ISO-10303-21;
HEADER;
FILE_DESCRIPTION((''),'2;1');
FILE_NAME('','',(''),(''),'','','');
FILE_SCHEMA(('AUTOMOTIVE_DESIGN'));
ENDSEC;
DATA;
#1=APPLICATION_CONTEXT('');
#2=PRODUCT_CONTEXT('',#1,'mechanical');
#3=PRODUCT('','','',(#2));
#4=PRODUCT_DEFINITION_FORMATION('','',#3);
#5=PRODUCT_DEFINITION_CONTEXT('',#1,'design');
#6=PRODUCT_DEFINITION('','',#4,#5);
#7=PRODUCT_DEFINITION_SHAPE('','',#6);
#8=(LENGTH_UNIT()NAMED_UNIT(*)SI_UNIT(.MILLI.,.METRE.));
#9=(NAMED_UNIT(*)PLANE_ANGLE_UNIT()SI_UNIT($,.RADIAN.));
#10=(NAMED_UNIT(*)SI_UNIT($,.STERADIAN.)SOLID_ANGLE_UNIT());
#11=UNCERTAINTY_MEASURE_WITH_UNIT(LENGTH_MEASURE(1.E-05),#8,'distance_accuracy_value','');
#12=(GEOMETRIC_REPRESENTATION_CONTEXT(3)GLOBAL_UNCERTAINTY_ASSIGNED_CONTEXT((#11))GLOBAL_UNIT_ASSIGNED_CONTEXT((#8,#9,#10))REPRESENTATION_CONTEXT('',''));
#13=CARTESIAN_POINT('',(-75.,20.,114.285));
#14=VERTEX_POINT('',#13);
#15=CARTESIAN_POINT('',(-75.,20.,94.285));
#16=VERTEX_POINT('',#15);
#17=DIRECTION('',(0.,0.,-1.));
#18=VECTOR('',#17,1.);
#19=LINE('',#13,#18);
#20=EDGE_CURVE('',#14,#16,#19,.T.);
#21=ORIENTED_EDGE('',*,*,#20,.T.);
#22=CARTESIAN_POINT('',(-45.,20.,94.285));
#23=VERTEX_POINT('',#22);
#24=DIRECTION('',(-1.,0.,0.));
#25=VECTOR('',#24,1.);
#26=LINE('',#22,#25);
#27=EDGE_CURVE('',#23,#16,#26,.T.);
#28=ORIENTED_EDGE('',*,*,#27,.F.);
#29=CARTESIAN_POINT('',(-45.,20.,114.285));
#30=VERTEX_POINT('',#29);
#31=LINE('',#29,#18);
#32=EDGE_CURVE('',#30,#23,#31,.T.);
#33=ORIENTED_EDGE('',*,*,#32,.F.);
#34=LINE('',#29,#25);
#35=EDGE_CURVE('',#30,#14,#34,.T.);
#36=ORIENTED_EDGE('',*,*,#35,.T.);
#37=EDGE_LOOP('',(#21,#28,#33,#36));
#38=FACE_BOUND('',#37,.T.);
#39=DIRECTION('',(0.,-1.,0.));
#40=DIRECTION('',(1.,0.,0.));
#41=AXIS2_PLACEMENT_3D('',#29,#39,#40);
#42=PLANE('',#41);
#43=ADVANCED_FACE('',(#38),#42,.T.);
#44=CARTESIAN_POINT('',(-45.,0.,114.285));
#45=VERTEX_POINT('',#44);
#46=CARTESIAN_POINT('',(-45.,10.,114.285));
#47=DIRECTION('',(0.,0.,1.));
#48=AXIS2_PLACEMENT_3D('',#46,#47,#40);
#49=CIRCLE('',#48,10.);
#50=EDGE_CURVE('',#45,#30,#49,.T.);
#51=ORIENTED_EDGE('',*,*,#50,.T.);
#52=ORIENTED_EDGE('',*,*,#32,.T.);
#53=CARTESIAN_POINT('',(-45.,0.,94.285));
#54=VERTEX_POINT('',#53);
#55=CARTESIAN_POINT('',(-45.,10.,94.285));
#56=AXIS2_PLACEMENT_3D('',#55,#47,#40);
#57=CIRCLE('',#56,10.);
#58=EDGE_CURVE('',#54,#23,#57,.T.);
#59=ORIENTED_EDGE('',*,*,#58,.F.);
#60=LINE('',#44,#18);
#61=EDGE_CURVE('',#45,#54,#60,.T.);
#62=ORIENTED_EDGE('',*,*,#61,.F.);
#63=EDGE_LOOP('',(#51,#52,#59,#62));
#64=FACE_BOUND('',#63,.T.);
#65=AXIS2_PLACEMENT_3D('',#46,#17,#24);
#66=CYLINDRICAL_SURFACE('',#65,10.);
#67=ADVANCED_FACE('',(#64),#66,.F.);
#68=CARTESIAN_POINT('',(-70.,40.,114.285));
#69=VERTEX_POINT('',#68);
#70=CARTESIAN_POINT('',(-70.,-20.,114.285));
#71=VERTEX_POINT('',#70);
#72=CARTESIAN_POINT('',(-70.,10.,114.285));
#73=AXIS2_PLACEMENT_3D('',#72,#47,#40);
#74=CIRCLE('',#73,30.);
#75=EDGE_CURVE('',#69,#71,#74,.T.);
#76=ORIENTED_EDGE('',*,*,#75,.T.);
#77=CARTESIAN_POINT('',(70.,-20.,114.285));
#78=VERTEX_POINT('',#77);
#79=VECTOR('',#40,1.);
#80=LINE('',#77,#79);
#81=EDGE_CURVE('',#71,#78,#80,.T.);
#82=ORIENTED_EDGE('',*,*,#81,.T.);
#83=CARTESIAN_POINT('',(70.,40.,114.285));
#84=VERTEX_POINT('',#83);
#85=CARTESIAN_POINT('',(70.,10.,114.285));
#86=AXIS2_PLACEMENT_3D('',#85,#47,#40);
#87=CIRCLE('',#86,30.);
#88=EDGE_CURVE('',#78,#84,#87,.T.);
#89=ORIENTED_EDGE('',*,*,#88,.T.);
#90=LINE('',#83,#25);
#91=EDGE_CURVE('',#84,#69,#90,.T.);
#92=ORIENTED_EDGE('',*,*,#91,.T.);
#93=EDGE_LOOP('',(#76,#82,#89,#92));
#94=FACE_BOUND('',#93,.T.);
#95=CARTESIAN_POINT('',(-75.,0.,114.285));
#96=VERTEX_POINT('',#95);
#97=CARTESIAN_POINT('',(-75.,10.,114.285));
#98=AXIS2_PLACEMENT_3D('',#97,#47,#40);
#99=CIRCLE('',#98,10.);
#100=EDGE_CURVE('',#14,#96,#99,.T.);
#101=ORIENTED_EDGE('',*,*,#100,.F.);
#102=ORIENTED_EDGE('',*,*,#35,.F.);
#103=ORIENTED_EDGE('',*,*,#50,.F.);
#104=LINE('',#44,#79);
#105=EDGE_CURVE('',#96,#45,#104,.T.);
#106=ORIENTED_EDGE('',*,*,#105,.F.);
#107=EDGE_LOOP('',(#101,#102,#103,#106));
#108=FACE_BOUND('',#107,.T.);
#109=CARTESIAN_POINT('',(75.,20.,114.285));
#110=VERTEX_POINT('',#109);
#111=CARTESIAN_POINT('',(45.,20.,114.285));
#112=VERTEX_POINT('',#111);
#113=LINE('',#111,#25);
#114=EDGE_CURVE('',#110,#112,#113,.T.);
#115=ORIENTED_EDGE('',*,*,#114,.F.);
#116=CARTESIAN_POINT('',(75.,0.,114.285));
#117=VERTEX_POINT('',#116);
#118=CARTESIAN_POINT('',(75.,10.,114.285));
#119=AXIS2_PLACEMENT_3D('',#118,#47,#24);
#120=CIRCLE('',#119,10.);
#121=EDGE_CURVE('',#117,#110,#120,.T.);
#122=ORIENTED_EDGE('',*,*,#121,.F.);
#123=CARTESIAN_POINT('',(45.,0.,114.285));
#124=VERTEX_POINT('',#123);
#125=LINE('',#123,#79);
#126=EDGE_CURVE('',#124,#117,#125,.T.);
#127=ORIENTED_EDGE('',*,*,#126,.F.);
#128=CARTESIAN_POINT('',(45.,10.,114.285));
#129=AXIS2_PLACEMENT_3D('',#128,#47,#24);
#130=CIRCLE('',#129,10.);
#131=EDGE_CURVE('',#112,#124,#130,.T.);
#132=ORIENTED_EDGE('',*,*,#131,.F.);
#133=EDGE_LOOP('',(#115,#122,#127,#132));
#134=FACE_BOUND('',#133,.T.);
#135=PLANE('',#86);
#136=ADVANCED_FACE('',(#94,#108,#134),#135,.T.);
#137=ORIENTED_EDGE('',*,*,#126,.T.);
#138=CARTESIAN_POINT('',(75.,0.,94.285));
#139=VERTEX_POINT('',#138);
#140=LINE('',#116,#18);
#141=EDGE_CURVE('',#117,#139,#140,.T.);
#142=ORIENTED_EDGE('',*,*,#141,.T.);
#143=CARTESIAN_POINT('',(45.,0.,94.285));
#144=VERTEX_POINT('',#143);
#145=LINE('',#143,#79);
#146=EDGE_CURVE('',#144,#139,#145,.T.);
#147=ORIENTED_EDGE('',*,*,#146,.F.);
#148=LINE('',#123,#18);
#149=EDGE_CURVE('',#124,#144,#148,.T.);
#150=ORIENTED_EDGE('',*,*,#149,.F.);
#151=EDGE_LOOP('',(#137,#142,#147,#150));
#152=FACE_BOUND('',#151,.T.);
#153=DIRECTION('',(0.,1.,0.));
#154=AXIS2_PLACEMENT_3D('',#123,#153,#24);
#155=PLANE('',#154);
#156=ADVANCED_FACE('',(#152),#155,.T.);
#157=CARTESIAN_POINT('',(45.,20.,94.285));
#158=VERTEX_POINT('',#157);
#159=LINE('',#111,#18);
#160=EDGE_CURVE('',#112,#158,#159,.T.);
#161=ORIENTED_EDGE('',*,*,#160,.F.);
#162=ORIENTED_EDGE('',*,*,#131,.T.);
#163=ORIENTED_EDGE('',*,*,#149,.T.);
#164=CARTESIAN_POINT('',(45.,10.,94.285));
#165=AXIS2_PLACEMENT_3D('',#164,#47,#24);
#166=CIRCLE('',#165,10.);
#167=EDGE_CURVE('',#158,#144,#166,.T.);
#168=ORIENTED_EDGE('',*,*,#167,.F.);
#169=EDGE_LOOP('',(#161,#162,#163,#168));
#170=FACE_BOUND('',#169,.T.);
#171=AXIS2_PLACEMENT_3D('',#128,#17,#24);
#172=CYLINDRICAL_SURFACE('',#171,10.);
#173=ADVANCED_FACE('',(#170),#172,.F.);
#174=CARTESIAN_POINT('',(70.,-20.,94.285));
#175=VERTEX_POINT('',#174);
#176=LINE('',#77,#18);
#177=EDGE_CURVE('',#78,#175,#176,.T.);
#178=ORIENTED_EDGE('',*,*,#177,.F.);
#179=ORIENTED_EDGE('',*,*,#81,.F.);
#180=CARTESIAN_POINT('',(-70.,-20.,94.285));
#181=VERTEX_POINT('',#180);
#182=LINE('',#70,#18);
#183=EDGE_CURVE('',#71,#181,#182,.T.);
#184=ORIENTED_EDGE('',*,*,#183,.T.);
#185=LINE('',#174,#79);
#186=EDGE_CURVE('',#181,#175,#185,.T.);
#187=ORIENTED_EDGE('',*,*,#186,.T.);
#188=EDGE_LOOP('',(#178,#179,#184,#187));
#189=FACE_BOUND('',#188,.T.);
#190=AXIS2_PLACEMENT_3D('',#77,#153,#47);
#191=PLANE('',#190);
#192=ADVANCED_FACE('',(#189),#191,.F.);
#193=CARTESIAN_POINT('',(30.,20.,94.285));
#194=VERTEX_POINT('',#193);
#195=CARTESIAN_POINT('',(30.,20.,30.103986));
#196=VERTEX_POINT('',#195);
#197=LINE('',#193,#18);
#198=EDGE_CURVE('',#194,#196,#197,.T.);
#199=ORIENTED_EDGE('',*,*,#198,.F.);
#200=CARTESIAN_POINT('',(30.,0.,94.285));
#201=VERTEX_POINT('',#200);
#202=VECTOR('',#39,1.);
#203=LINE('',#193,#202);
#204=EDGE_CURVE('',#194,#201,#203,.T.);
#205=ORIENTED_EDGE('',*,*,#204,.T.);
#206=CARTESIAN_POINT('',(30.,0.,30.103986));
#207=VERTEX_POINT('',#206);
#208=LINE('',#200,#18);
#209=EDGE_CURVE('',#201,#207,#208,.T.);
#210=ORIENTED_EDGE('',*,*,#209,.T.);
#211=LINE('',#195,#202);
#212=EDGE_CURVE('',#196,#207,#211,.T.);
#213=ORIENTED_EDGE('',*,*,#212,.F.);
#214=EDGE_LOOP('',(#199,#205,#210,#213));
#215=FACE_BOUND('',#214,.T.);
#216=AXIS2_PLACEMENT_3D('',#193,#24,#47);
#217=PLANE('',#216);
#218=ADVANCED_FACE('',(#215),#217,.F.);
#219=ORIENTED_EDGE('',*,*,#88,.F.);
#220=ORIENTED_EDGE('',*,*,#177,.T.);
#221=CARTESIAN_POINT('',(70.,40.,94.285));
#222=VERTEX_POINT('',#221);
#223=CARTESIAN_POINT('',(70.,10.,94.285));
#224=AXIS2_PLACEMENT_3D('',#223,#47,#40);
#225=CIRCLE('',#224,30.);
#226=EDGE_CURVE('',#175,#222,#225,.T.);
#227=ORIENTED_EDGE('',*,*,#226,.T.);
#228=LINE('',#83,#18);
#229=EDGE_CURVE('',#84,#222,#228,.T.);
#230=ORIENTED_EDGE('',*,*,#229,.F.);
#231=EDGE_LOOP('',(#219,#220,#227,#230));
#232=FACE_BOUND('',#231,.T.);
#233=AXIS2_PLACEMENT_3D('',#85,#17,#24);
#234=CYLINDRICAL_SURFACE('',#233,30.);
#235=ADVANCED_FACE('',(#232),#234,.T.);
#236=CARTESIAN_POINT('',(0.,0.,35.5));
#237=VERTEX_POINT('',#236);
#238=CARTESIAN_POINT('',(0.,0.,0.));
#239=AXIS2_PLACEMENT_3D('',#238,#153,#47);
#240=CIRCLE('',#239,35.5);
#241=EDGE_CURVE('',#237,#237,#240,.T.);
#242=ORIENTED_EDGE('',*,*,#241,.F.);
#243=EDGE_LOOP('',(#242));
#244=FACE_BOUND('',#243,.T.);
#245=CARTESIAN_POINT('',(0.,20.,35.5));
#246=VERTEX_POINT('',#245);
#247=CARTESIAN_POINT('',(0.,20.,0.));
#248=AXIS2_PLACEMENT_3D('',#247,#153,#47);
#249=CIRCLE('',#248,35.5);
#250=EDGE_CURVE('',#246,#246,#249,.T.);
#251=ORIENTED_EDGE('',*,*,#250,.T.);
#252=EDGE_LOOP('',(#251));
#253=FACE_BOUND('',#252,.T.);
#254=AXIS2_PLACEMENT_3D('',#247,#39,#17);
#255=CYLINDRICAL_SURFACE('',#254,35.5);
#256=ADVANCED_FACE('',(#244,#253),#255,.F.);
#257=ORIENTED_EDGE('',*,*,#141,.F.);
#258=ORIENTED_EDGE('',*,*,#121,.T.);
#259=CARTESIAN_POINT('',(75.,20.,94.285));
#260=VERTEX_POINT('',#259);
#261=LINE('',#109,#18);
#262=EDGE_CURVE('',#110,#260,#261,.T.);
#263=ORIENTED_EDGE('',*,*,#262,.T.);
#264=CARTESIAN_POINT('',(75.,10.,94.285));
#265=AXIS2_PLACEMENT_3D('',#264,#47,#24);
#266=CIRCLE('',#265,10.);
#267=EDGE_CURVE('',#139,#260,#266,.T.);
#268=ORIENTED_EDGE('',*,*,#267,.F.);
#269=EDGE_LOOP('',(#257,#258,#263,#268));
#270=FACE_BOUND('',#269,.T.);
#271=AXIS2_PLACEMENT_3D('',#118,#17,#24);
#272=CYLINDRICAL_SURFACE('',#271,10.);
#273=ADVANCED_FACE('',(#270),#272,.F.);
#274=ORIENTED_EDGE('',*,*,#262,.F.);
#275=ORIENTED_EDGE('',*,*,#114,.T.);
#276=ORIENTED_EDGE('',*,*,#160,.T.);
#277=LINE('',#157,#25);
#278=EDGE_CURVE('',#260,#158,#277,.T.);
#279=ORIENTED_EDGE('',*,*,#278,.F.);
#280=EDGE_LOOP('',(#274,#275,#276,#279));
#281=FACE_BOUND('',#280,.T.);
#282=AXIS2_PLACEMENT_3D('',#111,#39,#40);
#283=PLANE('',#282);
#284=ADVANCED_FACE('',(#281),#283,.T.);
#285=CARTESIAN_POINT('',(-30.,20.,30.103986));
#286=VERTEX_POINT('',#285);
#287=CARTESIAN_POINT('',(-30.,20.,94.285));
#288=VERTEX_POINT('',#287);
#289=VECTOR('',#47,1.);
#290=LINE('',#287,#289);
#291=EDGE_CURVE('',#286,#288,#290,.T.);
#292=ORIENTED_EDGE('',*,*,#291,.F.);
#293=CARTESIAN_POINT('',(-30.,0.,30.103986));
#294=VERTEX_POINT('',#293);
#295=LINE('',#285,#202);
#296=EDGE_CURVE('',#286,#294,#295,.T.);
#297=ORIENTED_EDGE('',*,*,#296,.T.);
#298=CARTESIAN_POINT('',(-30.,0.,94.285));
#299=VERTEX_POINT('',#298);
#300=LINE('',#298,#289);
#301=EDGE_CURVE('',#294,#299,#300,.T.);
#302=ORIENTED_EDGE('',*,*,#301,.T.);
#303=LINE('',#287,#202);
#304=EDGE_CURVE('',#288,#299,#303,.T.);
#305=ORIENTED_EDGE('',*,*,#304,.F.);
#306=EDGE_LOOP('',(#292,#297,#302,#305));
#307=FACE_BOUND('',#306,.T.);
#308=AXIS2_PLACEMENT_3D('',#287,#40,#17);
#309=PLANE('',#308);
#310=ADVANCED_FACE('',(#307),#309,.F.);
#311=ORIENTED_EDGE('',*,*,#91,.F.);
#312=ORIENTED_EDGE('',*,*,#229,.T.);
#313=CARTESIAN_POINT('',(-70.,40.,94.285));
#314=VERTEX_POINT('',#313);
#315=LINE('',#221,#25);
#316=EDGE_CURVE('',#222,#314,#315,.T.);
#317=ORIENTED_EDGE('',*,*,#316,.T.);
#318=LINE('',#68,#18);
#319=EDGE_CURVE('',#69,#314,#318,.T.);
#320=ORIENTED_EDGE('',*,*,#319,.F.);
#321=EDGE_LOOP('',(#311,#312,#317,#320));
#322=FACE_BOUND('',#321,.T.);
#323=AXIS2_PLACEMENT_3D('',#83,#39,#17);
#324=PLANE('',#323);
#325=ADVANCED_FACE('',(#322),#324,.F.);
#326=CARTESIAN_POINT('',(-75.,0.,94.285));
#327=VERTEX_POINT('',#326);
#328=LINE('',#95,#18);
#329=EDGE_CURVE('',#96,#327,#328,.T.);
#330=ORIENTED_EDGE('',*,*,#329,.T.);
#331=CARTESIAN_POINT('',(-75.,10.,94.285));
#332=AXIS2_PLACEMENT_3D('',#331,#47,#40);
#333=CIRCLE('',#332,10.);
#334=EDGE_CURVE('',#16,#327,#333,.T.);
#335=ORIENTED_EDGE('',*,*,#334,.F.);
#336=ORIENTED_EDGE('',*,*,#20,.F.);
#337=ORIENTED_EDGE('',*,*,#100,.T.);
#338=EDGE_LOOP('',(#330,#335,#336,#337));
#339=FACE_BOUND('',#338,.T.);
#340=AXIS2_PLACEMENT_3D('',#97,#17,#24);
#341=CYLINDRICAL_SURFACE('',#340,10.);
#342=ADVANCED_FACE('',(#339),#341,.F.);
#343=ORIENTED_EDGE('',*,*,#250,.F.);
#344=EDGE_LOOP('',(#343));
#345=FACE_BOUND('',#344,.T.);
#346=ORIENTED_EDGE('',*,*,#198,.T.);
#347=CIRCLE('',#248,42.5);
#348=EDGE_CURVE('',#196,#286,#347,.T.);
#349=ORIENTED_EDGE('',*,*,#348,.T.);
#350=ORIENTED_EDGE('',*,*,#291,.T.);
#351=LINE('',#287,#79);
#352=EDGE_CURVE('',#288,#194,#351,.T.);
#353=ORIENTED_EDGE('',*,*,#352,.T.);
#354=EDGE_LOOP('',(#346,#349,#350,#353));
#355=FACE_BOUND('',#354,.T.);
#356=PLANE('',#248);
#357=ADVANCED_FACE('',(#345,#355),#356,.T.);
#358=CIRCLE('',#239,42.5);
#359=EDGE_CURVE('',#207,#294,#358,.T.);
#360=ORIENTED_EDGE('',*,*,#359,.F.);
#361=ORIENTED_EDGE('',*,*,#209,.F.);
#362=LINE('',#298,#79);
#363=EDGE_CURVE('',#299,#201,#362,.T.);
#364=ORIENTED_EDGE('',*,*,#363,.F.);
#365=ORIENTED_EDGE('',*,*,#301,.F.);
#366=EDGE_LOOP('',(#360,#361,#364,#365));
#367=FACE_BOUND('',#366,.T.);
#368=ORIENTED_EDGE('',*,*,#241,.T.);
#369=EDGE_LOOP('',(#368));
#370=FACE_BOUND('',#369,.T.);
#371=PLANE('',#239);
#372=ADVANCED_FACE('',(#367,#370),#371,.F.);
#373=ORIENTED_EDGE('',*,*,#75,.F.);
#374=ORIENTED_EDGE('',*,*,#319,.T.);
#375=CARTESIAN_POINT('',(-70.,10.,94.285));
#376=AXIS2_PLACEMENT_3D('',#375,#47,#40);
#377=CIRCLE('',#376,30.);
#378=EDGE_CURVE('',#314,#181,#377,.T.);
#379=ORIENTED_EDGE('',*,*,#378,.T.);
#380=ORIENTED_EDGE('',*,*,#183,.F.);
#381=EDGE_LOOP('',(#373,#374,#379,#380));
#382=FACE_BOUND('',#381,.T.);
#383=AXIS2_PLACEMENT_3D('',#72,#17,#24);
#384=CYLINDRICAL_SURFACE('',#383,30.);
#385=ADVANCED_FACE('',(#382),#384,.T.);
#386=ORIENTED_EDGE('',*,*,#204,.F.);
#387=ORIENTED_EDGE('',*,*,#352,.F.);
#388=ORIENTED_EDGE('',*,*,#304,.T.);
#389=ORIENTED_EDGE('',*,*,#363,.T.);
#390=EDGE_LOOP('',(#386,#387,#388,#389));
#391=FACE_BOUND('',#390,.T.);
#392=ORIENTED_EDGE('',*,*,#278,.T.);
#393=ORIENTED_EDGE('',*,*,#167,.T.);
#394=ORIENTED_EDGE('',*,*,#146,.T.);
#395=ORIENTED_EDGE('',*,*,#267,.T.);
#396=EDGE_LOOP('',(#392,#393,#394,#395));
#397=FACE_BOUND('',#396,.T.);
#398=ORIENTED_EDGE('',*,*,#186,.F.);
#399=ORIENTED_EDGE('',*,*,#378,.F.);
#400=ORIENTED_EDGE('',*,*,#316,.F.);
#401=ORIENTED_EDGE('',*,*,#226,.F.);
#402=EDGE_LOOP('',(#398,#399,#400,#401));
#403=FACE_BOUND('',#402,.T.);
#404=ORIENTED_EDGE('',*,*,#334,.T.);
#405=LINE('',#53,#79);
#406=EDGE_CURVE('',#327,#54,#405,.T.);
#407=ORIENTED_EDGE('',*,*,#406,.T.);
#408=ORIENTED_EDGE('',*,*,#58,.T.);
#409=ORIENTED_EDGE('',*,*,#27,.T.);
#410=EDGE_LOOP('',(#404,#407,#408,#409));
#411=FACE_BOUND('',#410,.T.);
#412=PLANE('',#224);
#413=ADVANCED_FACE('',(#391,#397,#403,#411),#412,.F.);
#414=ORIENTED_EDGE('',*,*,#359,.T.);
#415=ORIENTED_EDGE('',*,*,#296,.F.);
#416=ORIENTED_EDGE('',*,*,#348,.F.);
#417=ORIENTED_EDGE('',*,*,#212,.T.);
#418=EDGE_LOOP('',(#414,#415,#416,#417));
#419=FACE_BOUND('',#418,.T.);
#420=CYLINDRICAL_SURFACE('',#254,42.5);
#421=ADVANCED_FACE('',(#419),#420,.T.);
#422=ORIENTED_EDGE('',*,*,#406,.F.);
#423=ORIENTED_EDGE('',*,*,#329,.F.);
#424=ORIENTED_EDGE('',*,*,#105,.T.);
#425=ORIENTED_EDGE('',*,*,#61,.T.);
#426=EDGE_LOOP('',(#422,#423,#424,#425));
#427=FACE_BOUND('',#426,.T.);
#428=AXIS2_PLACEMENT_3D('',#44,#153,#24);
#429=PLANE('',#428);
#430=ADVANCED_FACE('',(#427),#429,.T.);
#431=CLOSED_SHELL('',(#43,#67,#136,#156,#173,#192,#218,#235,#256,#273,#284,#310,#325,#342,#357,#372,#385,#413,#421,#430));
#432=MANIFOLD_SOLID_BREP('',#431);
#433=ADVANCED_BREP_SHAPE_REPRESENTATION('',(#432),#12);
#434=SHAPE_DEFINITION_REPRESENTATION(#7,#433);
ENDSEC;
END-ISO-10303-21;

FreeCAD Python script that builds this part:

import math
import FreeCAD as App
import Part
import Sketcher

V = App.Vector

doc = App.newDocument("Part")
body = doc.addObject("PartDesign::Body", "Body")

# Sketch on XZ plane
sketch1 = doc.addObject("Sketcher::SketchObject", "Sketch")
body.addObject(sketch1)
sketch1.AttachmentSupport = (doc.XZ_Plane, [""])
sketch1.MapMode = "FlatFace"
sketch1.addGeometry(Part.Circle(V(0, 0, 0), V(0, 0, 1), 42), False)
sketch1.addGeometry(Part.Circle(V(0, 0, 0), V(0, 0, 1), 36), False)
sketch1.addConstraint(Sketcher.Constraint("Coincident", 0, 3, -1, 1))
sketch1.addConstraint(Sketcher.Constraint("Coincident", 1, 3, -1, 1))
sketch1.addConstraint(Sketcher.Constraint("Diameter", 0, 85.0))
sketch1.addConstraint(Sketcher.Constraint("Diameter", 1, 71.0))
pad1 = doc.addObject("PartDesign::Pad", "Pad")
body.addObject(pad1)
pad1.Profile = sketch1
pad1.Length = 20
pad1.Reversed = True

# Sketch on XZ plane
sketch2 = doc.addObject("Sketcher::SketchObject", "Sketch001")
body.addObject(sketch2)
sketch2.AttachmentSupport = (doc.XZ_Plane, [""])
sketch2.MapMode = "FlatFace"
sketch2.addGeometry(Part.LineSegment(V(-30, 94, 0), V(30, 94, 0)), False)
sketch2.addGeometry(Part.LineSegment(V(30, 94, 0), V(30, 30, 0)), False)
sketch2.addGeometry(Part.ArcOfCircle(Part.Circle(V(0, 0, 0), V(0, 0, 1), 42), math.radians(45), math.radians(135)), False)
sketch2.addGeometry(Part.LineSegment(V(-30, 30, 0), V(-30, 94, 0)), False)
sketch2.addConstraint(Sketcher.Constraint("Coincident", 0, 2, 1, 1))
sketch2.addConstraint(Sketcher.Constraint("Coincident", 1, 2, 2, 1))
sketch2.addConstraint(Sketcher.Constraint("Coincident", 2, 2, 3, 1))
sketch2.addConstraint(Sketcher.Constraint("Coincident", 3, 2, 0, 1))
sketch2.addConstraint(Sketcher.Constraint("Horizontal", 0))
sketch2.addConstraint(Sketcher.Constraint("Vertical", 1))
sketch2.addConstraint(Sketcher.Constraint("Vertical", 3))
sketch2.addConstraint(Sketcher.Constraint("Coincident", 2, 3, -1, 1))
sketch2.addConstraint(Sketcher.Constraint("Horizontal", 1, 2, 2, 2))
sketch2.addConstraint(Sketcher.Constraint("Radius", 2, 42.5))
sketch2.addConstraint(Sketcher.Constraint("DistanceX", 0, 1, 0, 2, 60.0))
sketch2.addConstraint(Sketcher.Constraint("DistanceY", -1, 1, 0, 2, 94.285))
pad2 = doc.addObject("PartDesign::Pad", "Pad001")
body.addObject(pad2)
pad2.Profile = sketch2
pad2.Length = 20
pad2.Reversed = True

# Sketch on XY plane
sketch3 = doc.addObject("Sketcher::SketchObject", "Sketch002")
body.addObject(sketch3)
sketch3.AttachmentSupport = (doc.XY_Plane, [""])
sketch3.MapMode = "FlatFace"
sketch3.AttachmentOffset = App.Placement(V(0, 0, 94.285), App.Rotation())
sketch3.addGeometry(Part.LineSegment(V(-70, -20, 0), V(70, -20, 0)), False)
sketch3.addGeometry(Part.ArcOfCircle(Part.Circle(V(70, 10, 0), V(0, 0, 1), 30), math.radians(-90), math.radians(90)), False)
sketch3.addGeometry(Part.LineSegment(V(70, 40, 0), V(-70, 40, 0)), False)
sketch3.addGeometry(Part.ArcOfCircle(Part.Circle(V(-70, 10, 0), V(0, 0, 1), 30), math.radians(90), math.radians(270)), False)
sketch3.addGeometry(Part.ArcOfCircle(Part.Circle(V(45, 10, 0), V(0, 0, 1), 10), math.radians(90), math.radians(270)), False)
sketch3.addGeometry(Part.LineSegment(V(45, 20, 0), V(75, 20, 0)), False)
sketch3.addGeometry(Part.ArcOfCircle(Part.Circle(V(75, 10, 0), V(0, 0, 1), 10), math.radians(-90), math.radians(90)), False)
sketch3.addGeometry(Part.LineSegment(V(75, 0, 0), V(45, 0, 0)), False)
sketch3.addGeometry(Part.LineSegment(V(-45, 0, 0), V(-75, 0, 0)), False)
sketch3.addGeometry(Part.ArcOfCircle(Part.Circle(V(-75, 10, 0), V(0, 0, 1), 10), math.radians(90), math.radians(270)), False)
sketch3.addGeometry(Part.LineSegment(V(-75, 20, 0), V(-45, 20, 0)), False)
sketch3.addGeometry(Part.ArcOfCircle(Part.Circle(V(-45, 10, 0), V(0, 0, 1), 10), math.radians(-90), math.radians(90)), False)
sketch3.addConstraint(Sketcher.Constraint("Tangent", 0, 2, 1, 1))
sketch3.addConstraint(Sketcher.Constraint("Tangent", 1, 2, 2, 1))
sketch3.addConstraint(Sketcher.Constraint("Tangent", 2, 2, 3, 1))
sketch3.addConstraint(Sketcher.Constraint("Tangent", 3, 2, 0, 1))
sketch3.addConstraint(Sketcher.Constraint("Tangent", 4, 1, 5, 1))
sketch3.addConstraint(Sketcher.Constraint("Tangent", 5, 2, 6, 2))
sketch3.addConstraint(Sketcher.Constraint("Tangent", 6, 1, 7, 1))
sketch3.addConstraint(Sketcher.Constraint("Tangent", 7, 2, 4, 2))
sketch3.addConstraint(Sketcher.Constraint("Tangent", 8, 2, 9, 2))
sketch3.addConstraint(Sketcher.Constraint("Tangent", 9, 1, 10, 1))
sketch3.addConstraint(Sketcher.Constraint("Tangent", 10, 2, 11, 2))
sketch3.addConstraint(Sketcher.Constraint("Tangent", 11, 1, 8, 1))
sketch3.addConstraint(Sketcher.Constraint("Horizontal", 0))
sketch3.addConstraint(Sketcher.Constraint("Horizontal", 2))
sketch3.addConstraint(Sketcher.Constraint("Horizontal", 5))
sketch3.addConstraint(Sketcher.Constraint("Horizontal", 7))
sketch3.addConstraint(Sketcher.Constraint("Horizontal", 8))
sketch3.addConstraint(Sketcher.Constraint("Horizontal", 10))
sketch3.addConstraint(Sketcher.Constraint("Equal", 6, 9))
sketch3.addConstraint(Sketcher.Constraint("Symmetric", 6, 1, 8, 2, -1, 1))
sketch3.addConstraint(Sketcher.Constraint("Symmetric", 4, 3, 11, 3, -2))
sketch3.addConstraint(Sketcher.Constraint("Horizontal", 3, 3, 4, 3))
sketch3.addConstraint(Sketcher.Constraint("Radius", 1, 30.0))
sketch3.addConstraint(Sketcher.Constraint("Radius", 4, 10.0))
sketch3.addConstraint(Sketcher.Constraint("DistanceX", 0, 1, 0, 2, 140.0))
sketch3.addConstraint(Sketcher.Constraint("DistanceX", 5, 1, 5, 2, 30.0))
sketch3.addConstraint(Sketcher.Constraint("DistanceX", -1, 1, 1, 3, 70.0))
sketch3.addConstraint(Sketcher.Constraint("DistanceX", -1, 1, 4, 3, 45.0))
pad3 = doc.addObject("PartDesign::Pad", "Pad002")
body.addObject(pad3)
pad3.Profile = sketch3
pad3.Length = 20

doc.recompute()
